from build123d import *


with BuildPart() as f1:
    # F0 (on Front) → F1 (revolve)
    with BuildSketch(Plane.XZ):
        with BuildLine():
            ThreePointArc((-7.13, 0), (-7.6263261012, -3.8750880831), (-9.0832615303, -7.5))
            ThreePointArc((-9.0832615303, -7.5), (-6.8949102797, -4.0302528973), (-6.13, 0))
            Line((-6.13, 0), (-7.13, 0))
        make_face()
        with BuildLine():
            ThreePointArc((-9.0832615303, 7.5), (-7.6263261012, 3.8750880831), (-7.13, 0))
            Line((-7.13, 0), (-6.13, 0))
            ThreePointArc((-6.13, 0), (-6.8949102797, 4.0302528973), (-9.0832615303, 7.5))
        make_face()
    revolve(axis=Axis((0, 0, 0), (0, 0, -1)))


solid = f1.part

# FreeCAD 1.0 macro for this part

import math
import FreeCAD as App
import Part
import Sketcher
from FreeCAD import Vector
Q = App.Units.Quantity

doc = App.newDocument("Part")
body = doc.addObject("PartDesign::Body", "Body")

# Sketch on XZ plane
sketch1 = body.newObject("Sketcher::SketchObject", "Sketch")
sketch1.AttachmentSupport = (doc.getObject("XZ_Plane"), [""])
sketch1.MapMode = "FlatFace"
sketch1.addGeometry([
    Part.ArcOfCircle(Part.Circle(Vector(-22.505624, 0, 0), Vector(0, 0, 1), 15.375624), math.radians(-29.195105), math.radians(0)),
    Part.ArcOfCircle(Part.Circle(Vector(-17.13, 0, 0), Vector(0, 0, 1), 11), math.radians(-42.985886), math.radians(0)),
    Part.ArcOfCircle(Part.Circle(Vector(-17.13, 0, 0), Vector(0, 0, 1), 11), math.radians(0), math.radians(42.985886)),
    Part.ArcOfCircle(Part.Circle(Vector(-22.505624, 0, 0), Vector(0, 0, 1), 15.375624), math.radians(0), math.radians(29.195105)),
], False)
sketch1.addConstraint([
    Sketcher.Constraint("Coincident", 0, 1, 1, 1),
    Sketcher.Constraint("Tangent", 1, 2, 2, 1),
    Sketcher.Constraint("Coincident", 2, 2, 3, 2),
    Sketcher.Constraint("Tangent", 3, 1, 0, 2),
    Sketcher.Constraint("Equal", 1, 2),
    Sketcher.Constraint("Equal", 0, 3),
    Sketcher.Constraint("Symmetric", 0, 1, 2, 2, -1),
    Sketcher.Constraint("PointOnObject", 1, 2, -1),
    Sketcher.Constraint("PointOnObject", 3, 1, -1),
    Sketcher.Constraint("Radius", 1, Q("11 mm")),
    Sketcher.Constraint("DistanceY", 0, 1, 2, 2, Q("15 mm")),
    Sketcher.Constraint("DistanceX", 3, 1, 1, 2, Q("1 mm")),
    Sketcher.Constraint("DistanceX", 1, 3, -1, 1, Q("17.13 mm")),
])
revolution = body.newObject("PartDesign::Revolution", "Revolution")
revolution.Profile = sketch1
revolution.ReferenceAxis = (sketch1, ["V_Axis"])
revolution.Angle = 360

doc.recompute()
